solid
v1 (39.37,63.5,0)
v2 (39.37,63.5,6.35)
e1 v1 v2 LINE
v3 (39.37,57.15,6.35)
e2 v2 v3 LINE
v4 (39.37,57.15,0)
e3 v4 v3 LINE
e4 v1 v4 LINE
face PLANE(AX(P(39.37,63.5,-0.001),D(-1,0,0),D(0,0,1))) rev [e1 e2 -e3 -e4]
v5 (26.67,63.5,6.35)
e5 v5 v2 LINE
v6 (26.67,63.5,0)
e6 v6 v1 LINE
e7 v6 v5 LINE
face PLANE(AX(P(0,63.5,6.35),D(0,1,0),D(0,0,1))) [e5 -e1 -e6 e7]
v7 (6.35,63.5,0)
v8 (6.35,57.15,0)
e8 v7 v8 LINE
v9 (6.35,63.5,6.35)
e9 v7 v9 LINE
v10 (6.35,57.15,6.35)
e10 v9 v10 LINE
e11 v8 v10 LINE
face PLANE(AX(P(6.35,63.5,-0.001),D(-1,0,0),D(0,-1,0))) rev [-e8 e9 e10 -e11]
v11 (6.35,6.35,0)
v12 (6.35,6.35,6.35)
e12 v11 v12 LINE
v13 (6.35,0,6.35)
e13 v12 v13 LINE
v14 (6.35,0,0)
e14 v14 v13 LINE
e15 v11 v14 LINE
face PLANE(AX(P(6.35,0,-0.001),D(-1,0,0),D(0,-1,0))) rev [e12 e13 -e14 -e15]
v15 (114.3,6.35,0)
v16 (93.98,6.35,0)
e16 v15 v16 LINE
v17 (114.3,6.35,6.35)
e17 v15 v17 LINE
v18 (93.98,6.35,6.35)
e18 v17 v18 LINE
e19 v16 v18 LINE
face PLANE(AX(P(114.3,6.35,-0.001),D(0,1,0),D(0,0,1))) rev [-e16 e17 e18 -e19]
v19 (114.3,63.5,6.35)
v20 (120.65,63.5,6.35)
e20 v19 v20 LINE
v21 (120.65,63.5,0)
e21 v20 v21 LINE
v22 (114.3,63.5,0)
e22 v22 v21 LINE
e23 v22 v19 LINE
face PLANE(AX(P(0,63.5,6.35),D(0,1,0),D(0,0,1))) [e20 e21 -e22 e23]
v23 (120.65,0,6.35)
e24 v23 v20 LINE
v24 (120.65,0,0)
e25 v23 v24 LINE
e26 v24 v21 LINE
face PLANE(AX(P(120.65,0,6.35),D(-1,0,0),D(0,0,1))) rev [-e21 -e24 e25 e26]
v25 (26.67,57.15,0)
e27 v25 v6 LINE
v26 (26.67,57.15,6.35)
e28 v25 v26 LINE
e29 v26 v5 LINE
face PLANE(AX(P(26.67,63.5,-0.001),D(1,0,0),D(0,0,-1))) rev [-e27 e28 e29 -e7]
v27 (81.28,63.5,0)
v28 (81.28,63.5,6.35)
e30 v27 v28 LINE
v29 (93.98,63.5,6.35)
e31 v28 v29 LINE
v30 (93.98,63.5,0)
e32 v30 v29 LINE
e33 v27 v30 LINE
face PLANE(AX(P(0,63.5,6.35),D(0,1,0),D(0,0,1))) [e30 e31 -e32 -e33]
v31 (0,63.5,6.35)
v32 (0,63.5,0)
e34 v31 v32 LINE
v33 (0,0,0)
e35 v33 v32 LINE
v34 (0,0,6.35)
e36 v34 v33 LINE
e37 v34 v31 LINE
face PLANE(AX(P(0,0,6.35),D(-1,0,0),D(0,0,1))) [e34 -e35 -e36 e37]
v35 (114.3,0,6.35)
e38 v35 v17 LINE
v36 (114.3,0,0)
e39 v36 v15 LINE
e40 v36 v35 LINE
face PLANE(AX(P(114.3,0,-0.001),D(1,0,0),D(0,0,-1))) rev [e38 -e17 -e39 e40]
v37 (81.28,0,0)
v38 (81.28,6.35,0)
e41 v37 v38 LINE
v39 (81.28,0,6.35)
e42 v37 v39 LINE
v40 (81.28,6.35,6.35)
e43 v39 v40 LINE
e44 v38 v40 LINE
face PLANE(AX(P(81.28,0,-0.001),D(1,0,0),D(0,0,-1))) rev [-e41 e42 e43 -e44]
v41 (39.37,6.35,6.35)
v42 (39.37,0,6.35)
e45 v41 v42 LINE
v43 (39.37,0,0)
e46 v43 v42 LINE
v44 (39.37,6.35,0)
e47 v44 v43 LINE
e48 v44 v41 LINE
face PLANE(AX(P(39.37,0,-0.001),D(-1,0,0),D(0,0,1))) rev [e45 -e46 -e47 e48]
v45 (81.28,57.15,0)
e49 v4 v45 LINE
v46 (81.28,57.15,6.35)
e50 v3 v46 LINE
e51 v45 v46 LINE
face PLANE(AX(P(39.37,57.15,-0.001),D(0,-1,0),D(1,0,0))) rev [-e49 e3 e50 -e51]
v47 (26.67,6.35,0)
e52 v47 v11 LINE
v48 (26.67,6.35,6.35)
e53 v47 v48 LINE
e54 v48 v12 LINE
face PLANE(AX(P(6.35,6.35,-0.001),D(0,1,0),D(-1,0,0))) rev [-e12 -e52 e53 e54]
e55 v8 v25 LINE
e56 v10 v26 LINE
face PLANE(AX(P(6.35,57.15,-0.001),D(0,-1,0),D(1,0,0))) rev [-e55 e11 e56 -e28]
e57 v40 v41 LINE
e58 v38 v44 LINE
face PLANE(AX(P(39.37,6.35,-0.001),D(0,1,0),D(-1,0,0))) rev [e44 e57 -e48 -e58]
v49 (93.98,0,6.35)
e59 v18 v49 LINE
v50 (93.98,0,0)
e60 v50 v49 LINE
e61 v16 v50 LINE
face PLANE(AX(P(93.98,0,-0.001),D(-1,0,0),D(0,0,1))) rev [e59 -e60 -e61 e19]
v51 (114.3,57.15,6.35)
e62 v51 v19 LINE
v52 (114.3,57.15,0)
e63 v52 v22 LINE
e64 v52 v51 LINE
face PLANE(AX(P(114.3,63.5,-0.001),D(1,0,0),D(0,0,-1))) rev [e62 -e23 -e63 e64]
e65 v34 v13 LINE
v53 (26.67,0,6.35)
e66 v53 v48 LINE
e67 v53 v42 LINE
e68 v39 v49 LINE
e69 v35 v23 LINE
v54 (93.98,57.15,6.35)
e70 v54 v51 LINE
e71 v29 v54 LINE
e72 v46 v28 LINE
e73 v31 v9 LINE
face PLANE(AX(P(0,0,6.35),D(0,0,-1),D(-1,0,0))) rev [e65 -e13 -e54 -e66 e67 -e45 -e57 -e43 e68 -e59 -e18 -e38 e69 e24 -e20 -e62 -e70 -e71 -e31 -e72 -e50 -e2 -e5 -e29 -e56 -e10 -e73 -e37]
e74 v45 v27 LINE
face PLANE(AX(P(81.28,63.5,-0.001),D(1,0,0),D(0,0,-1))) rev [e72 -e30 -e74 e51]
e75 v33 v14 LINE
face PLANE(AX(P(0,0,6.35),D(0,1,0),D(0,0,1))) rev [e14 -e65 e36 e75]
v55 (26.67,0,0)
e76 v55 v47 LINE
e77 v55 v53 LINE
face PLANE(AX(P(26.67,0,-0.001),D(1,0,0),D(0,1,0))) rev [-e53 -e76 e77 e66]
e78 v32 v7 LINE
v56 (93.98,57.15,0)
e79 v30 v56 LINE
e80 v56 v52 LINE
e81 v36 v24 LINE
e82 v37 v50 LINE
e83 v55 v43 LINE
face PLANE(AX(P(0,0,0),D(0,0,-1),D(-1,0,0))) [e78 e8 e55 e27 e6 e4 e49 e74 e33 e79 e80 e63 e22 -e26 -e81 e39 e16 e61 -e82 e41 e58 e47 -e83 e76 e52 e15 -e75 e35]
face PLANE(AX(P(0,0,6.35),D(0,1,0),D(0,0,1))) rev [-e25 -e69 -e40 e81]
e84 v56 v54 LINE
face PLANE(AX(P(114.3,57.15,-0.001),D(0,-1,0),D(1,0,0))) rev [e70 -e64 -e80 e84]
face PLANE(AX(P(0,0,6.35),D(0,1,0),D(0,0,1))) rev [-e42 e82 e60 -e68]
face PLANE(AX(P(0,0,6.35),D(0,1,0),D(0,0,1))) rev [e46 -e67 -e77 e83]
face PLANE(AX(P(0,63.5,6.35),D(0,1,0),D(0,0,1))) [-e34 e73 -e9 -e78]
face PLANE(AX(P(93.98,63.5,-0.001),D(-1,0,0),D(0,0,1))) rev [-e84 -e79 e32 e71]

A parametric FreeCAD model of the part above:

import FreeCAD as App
import Part
import Sketcher
Q = App.Units.Quantity

doc = App.newDocument("Part")
body = doc.addObject("PartDesign::Body", "Body")

# Sketch on XY plane
sketch1 = body.newObject("Sketcher::SketchObject", "Sketch")
sketch1.AttachmentSupport = (doc.getObject("XY_Plane"), [""])
sketch1.MapMode = "FlatFace"
sketch1.addGeometry(Part.LineSegment(App.Vector(0, 63.5, 0), App.Vector(0, 0, 0)), False)
sketch1.addGeometry(Part.LineSegment(App.Vector(0, 0, 0), App.Vector(120.65, 0, 0)), False)
sketch1.addGeometry(Part.LineSegment(App.Vector(120.65, 0, 0), App.Vector(120.65, 63.5, 0)), False)
sketch1.addGeometry(Part.LineSegment(App.Vector(120.65, 63.5, 0), App.Vector(0, 63.5, 0)), False)
sketch1.addConstraint(Sketcher.Constraint("Coincident", 0, 2, 1, 1))
sketch1.addConstraint(Sketcher.Constraint("Coincident", 1, 2, 2, 1))
sketch1.addConstraint(Sketcher.Constraint("Coincident", 2, 2, 3, 1))
sketch1.addConstraint(Sketcher.Constraint("Coincident", 3, 2, 0, 1))
sketch1.addConstraint(Sketcher.Constraint("Vertical", 0))
sketch1.addConstraint(Sketcher.Constraint("Horizontal", 1))
sketch1.addConstraint(Sketcher.Constraint("Vertical", 2))
sketch1.addConstraint(Sketcher.Constraint("Horizontal", 3))
sketch1.addConstraint(Sketcher.Constraint("Coincident", 0, 2, -1, 1))
sketch1.addConstraint(Sketcher.Constraint("DistanceY", 0, 2, 0, 1, Q("2.5 in")))
sketch1.addConstraint(Sketcher.Constraint("DistanceX", 1, 1, 1, 2, Q("4.75 in")))
pad1 = body.newObject("PartDesign::Pad", "Pad")
pad1.Profile = sketch1
pad1.Length = Q("0.25 in")

# Sketch on XY plane
sketch2 = body.newObject("Sketcher::SketchObject", "Sketch001")
sketch2.AttachmentSupport = (doc.getObject("XY_Plane"), [""])
sketch2.MapMode = "FlatFace"
sketch2.AttachmentOffset = App.Placement(App.Vector(0, 0, 0.25 * 25.4), App.Rotation())
sketch2.addGeometry(Part.LineSegment(App.Vector(6.35, 63.5, 0), App.Vector(6.35, 57.15, 0)), False)
sketch2.addGeometry(Part.LineSegment(App.Vector(6.35, 57.15, 0), App.Vector(26.67, 57.15, 0)), False)
sketch2.addGeometry(Part.LineSegment(App.Vector(26.67, 57.15, 0), App.Vector(26.67, 63.5, 0)), False)
sketch2.addGeometry(Part.LineSegment(App.Vector(26.67, 63.5, 0), App.Vector(6.35, 63.5, 0)), False)
sketch2.addConstraint(Sketcher.Constraint("Coincident", 0, 2, 1, 1))
sketch2.addConstraint(Sketcher.Constraint("Coincident", 1, 2, 2, 1))
sketch2.addConstraint(Sketcher.Constraint("Coincident", 2, 2, 3, 1))
sketch2.addConstraint(Sketcher.Constraint("Coincident", 3, 2, 0, 1))
sketch2.addConstraint(Sketcher.Constraint("Vertical", 0))
sketch2.addConstraint(Sketcher.Constraint("Horizontal", 1))
sketch2.addConstraint(Sketcher.Constraint("Vertical", 2))
sketch2.addConstraint(Sketcher.Constraint("Horizontal", 3))
sketch2.addConstraint(Sketcher.Constraint("DistanceX", 1, 1, 1, 2, Q("0.8 in")))
sketch2.addConstraint(Sketcher.Constraint("DistanceY", 0, 2, 0, 1, Q("0.25 in")))
sketch2.addConstraint(Sketcher.Constraint("DistanceY", -1, 1, 2, 2, Q("2.5 in")))
sketch2.addConstraint(Sketcher.Constraint("DistanceX", -1, 1, 0, 2, Q("0.25 in")))
pocket1 = body.newObject("PartDesign::Pocket", "Pocket")
pocket1.Profile = sketch2
pocket1.Type = "UpToFirst"

# Sketch on XY plane
sketch3 = body.newObject("Sketcher::SketchObject", "Sketch002")
sketch3.AttachmentSupport = (doc.getObject("XY_Plane"), [""])
sketch3.MapMode = "FlatFace"
sketch3.AttachmentOffset = App.Placement(App.Vector(0, 0, 0.25 * 25.4), App.Rotation())
sketch3.addGeometry(Part.LineSegment(App.Vector(39.37, 63.5, 0), App.Vector(39.37, 57.15, 0)), False)
sketch3.addGeometry(Part.LineSegment(App.Vector(39.37, 57.15, 0), App.Vector(81.28, 57.15, 0)), False)
sketch3.addGeometry(Part.LineSegment(App.Vector(81.28, 57.15, 0), App.Vector(81.28, 63.5, 0)), False)
sketch3.addGeometry(Part.LineSegment(App.Vector(81.28, 63.5, 0), App.Vector(39.37, 63.5, 0)), False)
sketch3.addConstraint(Sketcher.Constraint("Coincident", 0, 2, 1, 1))
sketch3.addConstraint(Sketcher.Constraint("Coincident", 1, 2, 2, 1))
sketch3.addConstraint(Sketcher.Constraint("Coincident", 2, 2, 3, 1))
sketch3.addConstraint(Sketcher.Constraint("Coincident", 3, 2, 0, 1))
sketch3.addConstraint(Sketcher.Constraint("Vertical", 0))
sketch3.addConstraint(Sketcher.Constraint("Horizontal", 1))
sketch3.addConstraint(Sketcher.Constraint("Vertical", 2))
sketch3.addConstraint(Sketcher.Constraint("Horizontal", 3))
sketch3.addConstraint(Sketcher.Constraint("DistanceX", 1, 1, 1, 2, Q("1.65 in")))
sketch3.addConstraint(Sketcher.Constraint("DistanceY", 0, 2, 0, 1, Q("0.25 in")))
sketch3.addConstraint(Sketcher.Constraint("DistanceX", -1, 1, 1, 2, Q("3.2 in")))
sketch3.addConstraint(Sketcher.Constraint("DistanceY", -1, 1, 2, 2, Q("2.5 in")))
pocket2 = body.newObject("PartDesign::Pocket", "Pocket001")
pocket2.Profile = sketch3
pocket2.Type = "UpToFirst"

# Sketch on XY plane
sketch4 = body.newObject("Sketcher::SketchObject", "Sketch003")
sketch4.AttachmentSupport = (doc.getObject("XY_Plane"), [""])
sketch4.MapMode = "FlatFace"
sketch4.AttachmentOffset = App.Placement(App.Vector(0, 0, 0.25 * 25.4), App.Rotation())
sketch4.addGeometry(Part.LineSegment(App.Vector(93.98, 63.5, 0), App.Vector(93.98, 57.15, 0)), False)
sketch4.addGeometry(Part.LineSegment(App.Vector(93.98, 57.15, 0), App.Vector(114.3, 57.15, 0)), False)
sketch4.addGeometry(Part.LineSegment(App.Vector(114.3, 57.15, 0), App.Vector(114.3, 63.5, 0)), False)
sketch4.addGeometry(Part.LineSegment(App.Vector(114.3, 63.5, 0), App.Vector(93.98, 63.5, 0)), False)
sketch4.addConstraint(Sketcher.Constraint("Coincident", 0, 2, 1, 1))
sketch4.addConstraint(Sketcher.Constraint("Coincident", 1, 2, 2, 1))
sketch4.addConstraint(Sketcher.Constraint("Coincident", 2, 2, 3, 1))
sketch4.addConstraint(Sketcher.Constraint("Coincident", 3, 2, 0, 1))
sketch4.addConstraint(Sketcher.Constraint("Vertical", 0))
sketch4.addConstraint(Sketcher.Constraint("Horizontal", 1))
sketch4.addConstraint(Sketcher.Constraint("Vertical", 2))
sketch4.addConstraint(Sketcher.Constraint("Horizontal", 3))
sketch4.addConstraint(Sketcher.Constraint("DistanceX", 1, 1, 1, 2, Q("0.8 in")))
sketch4.addConstraint(Sketcher.Constraint("DistanceY", 0, 2, 0, 1, Q("0.25 in")))
sketch4.addConstraint(Sketcher.Constraint("DistanceX", -1, 1, 0, 2, Q("3.7 in")))
sketch4.addConstraint(Sketcher.Constraint("DistanceY", -1, 1, 2, 2, Q("2.5 in")))
pocket3 = body.newObject("PartDesign::Pocket", "Pocket002")
pocket3.Profile = sketch4
pocket3.Type = "UpToFirst"

# Sketch on XY plane
sketch5 = body.newObject("Sketcher::SketchObject", "Sketch004")
sketch5.AttachmentSupport = (doc.getObject("XY_Plane"), [""])
sketch5.MapMode = "FlatFace"
sketch5.AttachmentOffset = App.Placement(App.Vector(0, 0, 0.25 * 25.4), App.Rotation())
sketch5.addGeometry(Part.LineSegment(App.Vector(93.98, 6.35, 0), App.Vector(93.98, 0, 0)), False)
sketch5.addGeometry(Part.LineSegment(App.Vector(93.98, 0, 0), App.Vector(114.3, 0, 0)), False)
sketch5.addGeometry(Part.LineSegment(App.Vector(114.3, 0, 0), App.Vector(114.3, 6.35, 0)), False)
sketch5.addGeometry(Part.LineSegment(App.Vector(114.3, 6.35, 0), App.Vector(93.98, 6.35, 0)), False)
sketch5.addConstraint(Sketcher.Constraint("Coincident", 0, 2, 1, 1))
sketch5.addConstraint(Sketcher.Constraint("Coincident", 1, 2, 2, 1))
sketch5.addConstraint(Sketcher.Constraint("Coincident", 2, 2, 3, 1))
sketch5.addConstraint(Sketcher.Constraint("Coincident", 3, 2, 0, 1))
sketch5.addConstraint(Sketcher.Constraint("Vertical", 0))
sketch5.addConstraint(Sketcher.Constraint("Horizontal", 1))
sketch5.addConstraint(Sketcher.Constraint("Vertical", 2))
sketch5.addConstraint(Sketcher.Constraint("Horizontal", 3))
sketch5.addConstraint(Sketcher.Constraint("PointOnObject", 0, 2, -1))
sketch5.addConstraint(Sketcher.Constraint("DistanceX", 1, 1, 1, 2, Q("0.8 in")))
sketch5.addConstraint(Sketcher.Constraint("DistanceY", 0, 2, 0, 1, Q("0.25 in")))
sketch5.addConstraint(Sketcher.Constraint("DistanceX", -1, 1, 0, 2, Q("3.7 in")))
pocket4 = body.newObject("PartDesign::Pocket", "Pocket003")
pocket4.Profile = sketch5
pocket4.Type = "UpToFirst"

# Sketch on XY plane
sketch6 = body.newObject("Sketcher::SketchObject", "Sketch005")
sketch6.AttachmentSupport = (doc.getObject("XY_Plane"), [""])
sketch6.MapMode = "FlatFace"
sketch6.AttachmentOffset = App.Placement(App.Vector(0, 0, 0.25 * 25.4), App.Rotation())
sketch6.addGeometry(Part.LineSegment(App.Vector(39.37, 6.35, 0), App.Vector(39.37, 0, 0)), False)
sketch6.addGeometry(Part.LineSegment(App.Vector(39.37, 0, 0), App.Vector(81.28, 0, 0)), False)
sketch6.addGeometry(Part.LineSegment(App.Vector(81.28, 0, 0), App.Vector(81.28, 6.35, 0)), False)
sketch6.addGeometry(Part.LineSegment(App.Vector(81.28, 6.35, 0), App.Vector(39.37, 6.35, 0)), False)
sketch6.addConstraint(Sketcher.Constraint("Coincident", 0, 2, 1, 1))
sketch6.addConstraint(Sketcher.Constraint("Coincident", 1, 2, 2, 1))
sketch6.addConstraint(Sketcher.Constraint("Coincident", 2, 2, 3, 1))
sketch6.addConstraint(Sketcher.Constraint("Coincident", 3, 2, 0, 1))
sketch6.addConstraint(Sketcher.Constraint("Vertical", 0))
sketch6.addConstraint(Sketcher.Constraint("Horizontal", 1))
sketch6.addConstraint(Sketcher.Constraint("Vertical", 2))
sketch6.addConstraint(Sketcher.Constraint("Horizontal", 3))
sketch6.addConstraint(Sketcher.Constraint("PointOnObject", 0, 2, -1))
sketch6.addConstraint(Sketcher.Constraint("DistanceX", 1, 1, 1, 2, Q("1.65 in")))
sketch6.addConstraint(Sketcher.Constraint("DistanceY", 0, 2, 0, 1, Q("0.25 in")))
sketch6.addConstraint(Sketcher.Constraint("DistanceX", -1, 1, 1, 2, Q("3.2 in")))
pocket5 = body.newObject("PartDesign::Pocket", "Pocket004")
pocket5.Profile = sketch6
pocket5.Type = "UpToFirst"

# Sketch on XY plane
sketch7 = body.newObject("Sketcher::SketchObject", "Sketch006")
sketch7.AttachmentSupport = (doc.getObject("XY_Plane"), [""])
sketch7.MapMode = "FlatFace"
sketch7.AttachmentOffset = App.Placement(App.Vector(0, 0, 0.25 * 25.4), App.Rotation())
sketch7.addGeometry(Part.LineSegment(App.Vector(6.35, 6.35, 0), App.Vector(6.35, 0, 0)), False)
sketch7.addGeometry(Part.LineSegment(App.Vector(6.35, 0, 0), App.Vector(26.67, 0, 0)), False)
sketch7.addGeometry(Part.LineSegment(App.Vector(26.67, 0, 0), App.Vector(26.67, 6.35, 0)), False)
sketch7.addGeometry(Part.LineSegment(App.Vector(26.67, 6.35, 0), App.Vector(6.35, 6.35, 0)), False)
sketch7.addConstraint(Sketcher.Constraint("Coincident", 0, 2, 1, 1))
sketch7.addConstraint(Sketcher.Constraint("Coincident", 1, 2, 2, 1))
sketch7.addConstraint(Sketcher.Constraint("Coincident", 2, 2, 3, 1))
sketch7.addConstraint(Sketcher.Constraint("Coincident", 3, 2, 0, 1))
sketch7.addConstraint(Sketcher.Constraint("Vertical", 0))
sketch7.addConstraint(Sketcher.Constraint("Horizontal", 1))
sketch7.addConstraint(Sketcher.Constraint("Vertical", 2))
sketch7.addConstraint(Sketcher.Constraint("Horizontal", 3))
sketch7.addConstraint(Sketcher.Constraint("PointOnObject", 0, 2, -1))
sketch7.addConstraint(Sketcher.Constraint("DistanceX", 1, 1, 1, 2, Q("0.8 in")))
sketch7.addConstraint(Sketcher.Constraint("DistanceY", 0, 2, 0, 1, Q("0.25 in")))
sketch7.addConstraint(Sketcher.Constraint("DistanceX", -1, 1, 0, 2, Q("0.25 in")))
pocket6 = body.newObject("PartDesign::Pocket", "Pocket005")
pocket6.Profile = sketch7
pocket6.Type = "UpToFirst"

doc.recompute()
